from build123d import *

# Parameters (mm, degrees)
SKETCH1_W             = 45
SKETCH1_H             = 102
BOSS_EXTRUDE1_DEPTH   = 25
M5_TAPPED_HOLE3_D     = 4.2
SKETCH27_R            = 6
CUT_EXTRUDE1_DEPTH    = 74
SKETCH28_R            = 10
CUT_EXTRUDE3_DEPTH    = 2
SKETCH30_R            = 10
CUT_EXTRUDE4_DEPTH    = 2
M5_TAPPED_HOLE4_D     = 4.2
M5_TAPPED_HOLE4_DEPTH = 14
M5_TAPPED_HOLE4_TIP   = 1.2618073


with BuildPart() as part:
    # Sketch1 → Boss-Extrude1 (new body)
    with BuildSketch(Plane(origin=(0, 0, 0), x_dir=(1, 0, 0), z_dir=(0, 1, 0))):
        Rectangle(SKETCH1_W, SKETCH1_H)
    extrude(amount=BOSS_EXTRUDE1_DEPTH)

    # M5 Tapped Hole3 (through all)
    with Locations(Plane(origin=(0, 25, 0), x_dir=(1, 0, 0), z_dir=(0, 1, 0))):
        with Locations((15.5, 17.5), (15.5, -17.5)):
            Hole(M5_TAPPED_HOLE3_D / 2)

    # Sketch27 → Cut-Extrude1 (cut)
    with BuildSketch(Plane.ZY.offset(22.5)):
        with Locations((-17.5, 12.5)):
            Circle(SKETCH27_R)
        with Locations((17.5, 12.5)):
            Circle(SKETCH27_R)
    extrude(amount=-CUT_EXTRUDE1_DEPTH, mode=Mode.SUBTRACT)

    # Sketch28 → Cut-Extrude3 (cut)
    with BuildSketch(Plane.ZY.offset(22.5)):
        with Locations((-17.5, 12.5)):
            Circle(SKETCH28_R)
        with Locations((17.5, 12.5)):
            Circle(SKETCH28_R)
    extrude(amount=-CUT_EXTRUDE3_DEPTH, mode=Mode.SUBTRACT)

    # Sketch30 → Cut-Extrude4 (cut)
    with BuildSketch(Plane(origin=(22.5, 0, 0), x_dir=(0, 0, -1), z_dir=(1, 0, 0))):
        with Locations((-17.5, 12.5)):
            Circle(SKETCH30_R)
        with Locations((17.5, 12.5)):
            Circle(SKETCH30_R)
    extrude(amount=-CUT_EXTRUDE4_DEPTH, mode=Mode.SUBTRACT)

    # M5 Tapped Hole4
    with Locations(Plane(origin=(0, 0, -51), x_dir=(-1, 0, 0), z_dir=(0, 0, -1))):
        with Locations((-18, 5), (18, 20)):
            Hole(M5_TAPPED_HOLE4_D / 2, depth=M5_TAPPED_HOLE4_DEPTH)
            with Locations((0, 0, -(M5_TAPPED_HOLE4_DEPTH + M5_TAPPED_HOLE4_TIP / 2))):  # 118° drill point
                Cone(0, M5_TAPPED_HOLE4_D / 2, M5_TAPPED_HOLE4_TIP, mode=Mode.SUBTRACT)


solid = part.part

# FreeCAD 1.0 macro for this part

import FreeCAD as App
import Part
import Sketcher

V = App.Vector
Q = App.Units.Quantity


def add_polygon(sketch, points):
    """Adds a closed chain of lines whose ends are joined by coincident constraints."""
    first, n = sketch.GeometryCount, len(points)
    for a, b in zip(points, points[1:] + points[:1]):
        sketch.addGeometry(Part.LineSegment(App.Vector(*a, 0), App.Vector(*b, 0)), False)
    for i in range(n):
        sketch.addConstraint(Sketcher.Constraint("Coincident", first + i, 2, first + (i + 1) % n, 1))

doc = App.newDocument("Part")
body = doc.addObject("PartDesign::Body", "Body")

# Sketch on XZ plane
sketch1 = body.newObject("Sketcher::SketchObject", "Sketch")
sketch1.AttachmentSupport = (doc.getObject("XZ_Plane"), [""])
sketch1.MapMode = "FlatFace"
add_polygon(sketch1, [(-22, -51), (-22, 51), (22, 51), (22, -51)])  # lines 0-3
sketch1.addConstraint([
    Sketcher.Constraint("Vertical", 0),
    Sketcher.Constraint("Horizontal", 1),
    Sketcher.Constraint("Vertical", 2),
    Sketcher.Constraint("Horizontal", 3),
    Sketcher.Constraint("Symmetric", 0, 2, 2, 2, -1, 1),
    Sketcher.Constraint("DistanceX", 1, 1, 1, 2, Q("45 mm")),
    Sketcher.Constraint("DistanceY", 0, 1, 0, 2, Q("102 mm")),
])
pad1 = body.newObject("PartDesign::Pad", "Pad")
pad1.Profile = sketch1
pad1.Length = 25
pad1.Reversed = True

# Sketch on XZ plane
sketch2 = body.newObject("Sketcher::SketchObject", "Sketch001")
sketch2.AttachmentSupport = (doc.getObject("XZ_Plane"), [""])
sketch2.MapMode = "FlatFace"
sketch2.AttachmentOffset = App.Placement(V(0, 0, -25), App.Rotation())
sketch2.addGeometry([
    Part.Circle(V(15.5, -17.5, 0), V(0, 0, 1), 2.1),
    Part.Circle(V(15.5, 17.5, 0), V(0, 0, 1), 2.1),
], False)
sketch2.addConstraint([
    Sketcher.Constraint("Equal", 0, 1),
    Sketcher.Constraint("Symmetric", 0, 3, 1, 3, -1),
    Sketcher.Constraint("Diameter", 0, Q("4.2 mm")),
    Sketcher.Constraint("DistanceY", 0, 3, 1, 3, Q("35 mm")),
    Sketcher.Constraint("DistanceX", -1, 1, 0, 3, Q("15.5 mm")),
])
doc.recompute()
hole = body.newObject("PartDesign::Hole", "Hole")
hole.Profile = sketch2
hole.ThreadType = "None"
hole.Diameter = 4.2
hole.DepthType = "ThroughAll"
hole.Reversed = True

# Sketch on YZ plane
sketch3 = body.newObject("Sketcher::SketchObject", "Sketch002")
sketch3.AttachmentSupport = (doc.getObject("YZ_Plane"), [""])
sketch3.MapMode = "FlatFace"
sketch3.AttachmentOffset = App.Placement(V(0, 0, -22.5), App.Rotation())
sketch3.addGeometry([
    Part.Circle(V(12, -18, 0), V(0, 0, 1), 6),
    Part.Circle(V(12, 18, 0), V(0, 0, 1), 6),
], False)
sketch3.addConstraint([
    Sketcher.Constraint("Equal", 0, 1),
    Sketcher.Constraint("Symmetric", 0, 3, 1, 3, -1),
    Sketcher.Constraint("Diameter", 0, Q("12 mm")),
    Sketcher.Constraint("DistanceY", 0, 3, 1, 3, Q("35 mm")),
    Sketcher.Constraint("DistanceX", -1, 1, 0, 3, Q("12.5 mm")),
])
pocket1 = body.newObject("PartDesign::Pocket", "Pocket")
pocket1.Profile = sketch3
pocket1.Length = 74
pocket1.Reversed = True

# Sketch on YZ plane
sketch4 = body.newObject("Sketcher::SketchObject", "Sketch003")
sketch4.AttachmentSupport = (doc.getObject("YZ_Plane"), [""])
sketch4.MapMode = "FlatFace"
sketch4.AttachmentOffset = App.Placement(V(0, 0, -22.5), App.Rotation())
sketch4.addGeometry([
    Part.Circle(V(12, -18, 0), V(0, 0, 1), 10),
    Part.Circle(V(12, 18, 0), V(0, 0, 1), 10),
], False)
sketch4.addConstraint([
    Sketcher.Constraint("Equal", 0, 1),
    Sketcher.Constraint("Symmetric", 0, 3, 1, 3, -1),
    Sketcher.Constraint("Diameter", 0, Q("20 mm")),
    Sketcher.Constraint("DistanceY", 0, 3, 1, 3, Q("35 mm")),
    Sketcher.Constraint("DistanceX", -1, 1, 0, 3, Q("12.5 mm")),
])
pocket2 = body.newObject("PartDesign::Pocket", "Pocket001")
pocket2.Profile = sketch4
pocket2.Length = 2
pocket2.Reversed = True

# Sketch on YZ plane
sketch5 = body.newObject("Sketcher::SketchObject", "Sketch004")
sketch5.AttachmentSupport = (doc.getObject("YZ_Plane"), [""])
sketch5.MapMode = "FlatFace"
sketch5.AttachmentOffset = App.Placement(V(0, 0, 22.5), App.Rotation())
sketch5.addGeometry([
    Part.Circle(V(12, 18, 0), V(0, 0, 1), 10),
    Part.Circle(V(12, -18, 0), V(0, 0, 1), 10),
], False)
sketch5.addConstraint([
    Sketcher.Constraint("Equal", 0, 1),
    Sketcher.Constraint("Symmetric", 0, 3, 1, 3, -1),
    Sketcher.Constraint("Diameter", 0, Q("20 mm")),
    Sketcher.Constraint("DistanceY", 1, 3, 0, 3, Q("35 mm")),
    Sketcher.Constraint("DistanceX", -1, 1, 0, 3, Q("12.5 mm")),
])
pocket3 = body.newObject("PartDesign::Pocket", "Pocket002")
pocket3.Profile = sketch5
pocket3.Length = 2

# Sketch on XY plane
sketch6 = body.newObject("Sketcher::SketchObject", "Sketch005")
sketch6.AttachmentSupport = (doc.getObject("XY_Plane"), [""])
sketch6.MapMode = "FlatFace"
sketch6.AttachmentOffset = App.Placement(V(0, 0, -51), App.Rotation())
sketch6.addGeometry([
    Part.Circle(V(18, 5, 0), V(0, 0, 1), 2.1),
    Part.Circle(V(-18, 20, 0), V(0, 0, 1), 2.1),
], False)
sketch6.addConstraint([
    Sketcher.Constraint("Equal", 0, 1),
    Sketcher.Constraint("Diameter", 0, Q("4.2 mm")),
    Sketcher.Constraint("DistanceX", -1, 1, 0, 3, Q("18 mm")),
    Sketcher.Constraint("DistanceY", -1, 1, 0, 3, Q("5 mm")),
    Sketcher.Constraint("DistanceX", 1, 3, -1, 1, Q("18 mm")),
    Sketcher.Constraint("DistanceY", -1, 1, 1, 3, Q("20 mm")),
])
doc.recompute()
hole2 = body.newObject("PartDesign::Hole", "Hole001")
hole2.Profile = sketch6
hole2.ThreadType = "None"
hole2.Diameter = 4.2
hole2.DepthType = "Dimension"
hole2.Depth = 14
hole2.DrillPoint = "Angled"
hole2.DrillPointAngle = 118
hole2.Reversed = True

doc.recompute()
